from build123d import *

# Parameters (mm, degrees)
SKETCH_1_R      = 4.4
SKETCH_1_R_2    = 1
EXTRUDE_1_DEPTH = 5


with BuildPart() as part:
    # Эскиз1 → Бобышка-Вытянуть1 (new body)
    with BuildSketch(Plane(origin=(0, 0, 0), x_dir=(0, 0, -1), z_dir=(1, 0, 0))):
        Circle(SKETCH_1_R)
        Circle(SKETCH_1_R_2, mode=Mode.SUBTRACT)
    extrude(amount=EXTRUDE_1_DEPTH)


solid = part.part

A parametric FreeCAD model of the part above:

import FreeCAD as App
import Part
import Sketcher

V = App.Vector

doc = App.newDocument("Part")
body = doc.addObject("PartDesign::Body", "Body")

sketch1 = doc.addObject("Sketcher::SketchObject", "Sketch")
body.addObject(sketch1)
sketch1.AttachmentSupport = (doc.YZ_Plane, [""])
sketch1.MapMode = "FlatFace"
sketch1.addGeometry([
    Part.Circle(V(0, 0, 0), V(0, 0, 1), 4.4),
    Part.Circle(V(0, 0, 0), V(0, 0, 1), 1),
], False)
sketch1.addConstraint([
    Sketcher.Constraint("Coincident", 0, 3, -1, 1),
    Sketcher.Constraint("Coincident", 1, 3, -1, 1),
    Sketcher.Constraint("Diameter", 1, 2.0),
    Sketcher.Constraint("Diameter", 0, 8.8),
])
pad1 = doc.addObject("PartDesign::Pad", "Pad")
body.addObject(pad1)
pad1.Profile = sketch1
pad1.Length = 5

doc.recompute()
